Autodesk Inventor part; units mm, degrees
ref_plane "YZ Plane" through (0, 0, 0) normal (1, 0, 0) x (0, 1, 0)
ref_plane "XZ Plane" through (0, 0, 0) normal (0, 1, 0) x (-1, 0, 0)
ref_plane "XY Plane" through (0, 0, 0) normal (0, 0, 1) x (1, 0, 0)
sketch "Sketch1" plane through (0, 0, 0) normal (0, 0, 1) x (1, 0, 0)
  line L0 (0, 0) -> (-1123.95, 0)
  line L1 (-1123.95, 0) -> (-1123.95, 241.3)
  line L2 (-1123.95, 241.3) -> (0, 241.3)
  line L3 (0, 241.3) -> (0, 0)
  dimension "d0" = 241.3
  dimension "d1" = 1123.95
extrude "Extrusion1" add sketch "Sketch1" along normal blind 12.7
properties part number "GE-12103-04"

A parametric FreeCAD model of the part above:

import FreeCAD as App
import Part
import Sketcher
from FreeCAD import Vector
Q = App.Units.Quantity


def add_polygon(sketch, points):
    """Adds a closed chain of lines whose ends are joined by coincident constraints."""
    first, n = sketch.GeometryCount, len(points)
    for a, b in zip(points, points[1:] + points[:1]):
        sketch.addGeometry(Part.LineSegment(App.Vector(*a, 0), App.Vector(*b, 0)), False)
    for i in range(n):
        sketch.addConstraint(Sketcher.Constraint("Coincident", first + i, 2, first + (i + 1) % n, 1))

doc = App.newDocument("Part")
body = doc.addObject("PartDesign::Body", "Body")

sketch1 = doc.addObject("Sketcher::SketchObject", "Sketch")
body.addObject(sketch1)
sketch1.AttachmentSupport = (doc.XY_Plane, [""])
sketch1.MapMode = "FlatFace"
add_polygon(sketch1, [(-1124, 0), (0, 0), (0, 241), (-1124, 241)])
sketch1.addConstraint(Sketcher.Constraint("Horizontal", 0))
sketch1.addConstraint(Sketcher.Constraint("Vertical", 1))
sketch1.addConstraint(Sketcher.Constraint("Horizontal", 2))
sketch1.addConstraint(Sketcher.Constraint("Vertical", 3))
sketch1.addConstraint(Sketcher.Constraint("Coincident", 0, 2, -1, 1))
sketch1.addConstraint(Sketcher.Constraint("DistanceY", 1, 1, 1, 2, Q("9.5 in")))
sketch1.addConstraint(Sketcher.Constraint("DistanceX", 0, 1, 0, 2, Q("44.25 in")))
pad1 = doc.addObject("PartDesign::Pad", "Pad")
body.addObject(pad1)
pad1.Profile = sketch1
pad1.Length = Q("0.5 in")

doc.recompute()
